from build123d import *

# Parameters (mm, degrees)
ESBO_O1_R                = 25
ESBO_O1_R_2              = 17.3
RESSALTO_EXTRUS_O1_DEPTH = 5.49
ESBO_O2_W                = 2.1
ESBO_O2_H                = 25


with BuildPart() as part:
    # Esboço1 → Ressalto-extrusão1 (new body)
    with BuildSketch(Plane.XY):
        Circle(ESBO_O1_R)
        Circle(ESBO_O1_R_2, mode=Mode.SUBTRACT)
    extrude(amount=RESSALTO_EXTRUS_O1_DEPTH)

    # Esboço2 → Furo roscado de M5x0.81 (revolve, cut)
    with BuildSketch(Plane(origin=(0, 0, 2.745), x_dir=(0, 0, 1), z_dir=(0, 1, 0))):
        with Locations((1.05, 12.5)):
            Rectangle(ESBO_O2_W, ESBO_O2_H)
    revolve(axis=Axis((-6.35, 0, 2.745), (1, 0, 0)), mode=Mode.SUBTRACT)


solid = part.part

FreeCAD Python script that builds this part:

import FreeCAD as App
import Part
import Sketcher

V = App.Vector


def add_polygon(sketch, points):
    """Adds a closed chain of lines whose ends are joined by coincident constraints."""
    first, n = sketch.GeometryCount, len(points)
    for a, b in zip(points, points[1:] + points[:1]):
        sketch.addGeometry(Part.LineSegment(App.Vector(*a, 0), App.Vector(*b, 0)), False)
    for i in range(n):
        sketch.addConstraint(Sketcher.Constraint("Coincident", first + i, 2, first + (i + 1) % n, 1))

doc = App.newDocument("Part")
params = doc.addObject("Spreadsheet::Sheet", "Params")
for row, (alias, value) in enumerate([
    ("sketch1_diameter", "50 mm"),
    ("sketch1_diameter2", "34.6 mm"),
    ("pad1_length", "5.49 mm"),
    ("sketch2_width", "25 mm"),
    ("sketch2_height", "2.1 mm"),
    ("groove_angle", "360 deg"),
], start=1):
    params.set(f"A{row}", alias)
    params.set(f"B{row}", "=" + value)
    params.setAlias(f"B{row}", alias)

body = doc.addObject("PartDesign::Body", "Body")

# Sketch on XY plane
sketch1 = body.newObject("Sketcher::SketchObject", "Sketch")
sketch1.AttachmentSupport = (doc.getObject("XY_Plane"), [""])
sketch1.MapMode = "FlatFace"
sketch1.addGeometry([
    Part.Circle(V(0, 0, 0), V(0, 0, 1), 25),
    Part.Circle(V(0, 0, 0), V(0, 0, 1), 17),
], False)
sketch1.addConstraint([
    Sketcher.Constraint("Coincident", 0, 3, -1, 1),
    Sketcher.Constraint("Coincident", 1, 3, -1, 1),
    Sketcher.Constraint("Diameter", 0, 50.0),
    Sketcher.Constraint("Diameter", 1, 34.6),
])
sketch1.setExpression("Constraints[2]", "Params.sketch1_diameter")
sketch1.setExpression("Constraints[3]", "Params.sketch1_diameter2")
pad1 = body.newObject("PartDesign::Pad", "Pad")
pad1.Profile = sketch1
pad1.setExpression("Length", "Params.pad1_length")

# Sketch on XZ plane
sketch2 = body.newObject("Sketcher::SketchObject", "Sketch001")
sketch2.AttachmentSupport = (doc.getObject("XZ_Plane"), [""])
sketch2.MapMode = "FlatFace"
add_polygon(sketch2, [(25, 2.7), (0, 2.7), (0, 4.8), (25, 4.8)])  # lines 0-3
sketch2.addGeometry(Part.LineSegment(V(0, 2.7, 0), V(25, 2.7, 0)), True)  # axis
sketch2.addConstraint([
    Sketcher.Constraint("Horizontal", 0),
    Sketcher.Constraint("Vertical", 1),
    Sketcher.Constraint("Horizontal", 2),
    Sketcher.Constraint("Vertical", 3),
    Sketcher.Constraint("Horizontal", 4),
    Sketcher.Constraint("Coincident", 4, 1, 0, 2),
    Sketcher.Constraint("PointOnObject", 0, 2, -2),
    Sketcher.Constraint("Vertical", 2, 2, 4, 2),
    Sketcher.Constraint("DistanceX", 0, 2, 0, 1, 25.0),
    Sketcher.Constraint("DistanceY", 1, 1, 1, 2, 2.1),
    Sketcher.Constraint("DistanceY", -1, 1, 0, 2, 2.745),
])
sketch2.setExpression("Constraints[12]", "Params.sketch2_width")
sketch2.setExpression("Constraints[13]", "Params.sketch2_height")
groove = body.newObject("PartDesign::Groove", "Groove")
groove.Profile = sketch2
groove.ReferenceAxis = (sketch2, ["Axis0"])
groove.setExpression("Angle", "Params.groove_angle")

doc.recompute()
